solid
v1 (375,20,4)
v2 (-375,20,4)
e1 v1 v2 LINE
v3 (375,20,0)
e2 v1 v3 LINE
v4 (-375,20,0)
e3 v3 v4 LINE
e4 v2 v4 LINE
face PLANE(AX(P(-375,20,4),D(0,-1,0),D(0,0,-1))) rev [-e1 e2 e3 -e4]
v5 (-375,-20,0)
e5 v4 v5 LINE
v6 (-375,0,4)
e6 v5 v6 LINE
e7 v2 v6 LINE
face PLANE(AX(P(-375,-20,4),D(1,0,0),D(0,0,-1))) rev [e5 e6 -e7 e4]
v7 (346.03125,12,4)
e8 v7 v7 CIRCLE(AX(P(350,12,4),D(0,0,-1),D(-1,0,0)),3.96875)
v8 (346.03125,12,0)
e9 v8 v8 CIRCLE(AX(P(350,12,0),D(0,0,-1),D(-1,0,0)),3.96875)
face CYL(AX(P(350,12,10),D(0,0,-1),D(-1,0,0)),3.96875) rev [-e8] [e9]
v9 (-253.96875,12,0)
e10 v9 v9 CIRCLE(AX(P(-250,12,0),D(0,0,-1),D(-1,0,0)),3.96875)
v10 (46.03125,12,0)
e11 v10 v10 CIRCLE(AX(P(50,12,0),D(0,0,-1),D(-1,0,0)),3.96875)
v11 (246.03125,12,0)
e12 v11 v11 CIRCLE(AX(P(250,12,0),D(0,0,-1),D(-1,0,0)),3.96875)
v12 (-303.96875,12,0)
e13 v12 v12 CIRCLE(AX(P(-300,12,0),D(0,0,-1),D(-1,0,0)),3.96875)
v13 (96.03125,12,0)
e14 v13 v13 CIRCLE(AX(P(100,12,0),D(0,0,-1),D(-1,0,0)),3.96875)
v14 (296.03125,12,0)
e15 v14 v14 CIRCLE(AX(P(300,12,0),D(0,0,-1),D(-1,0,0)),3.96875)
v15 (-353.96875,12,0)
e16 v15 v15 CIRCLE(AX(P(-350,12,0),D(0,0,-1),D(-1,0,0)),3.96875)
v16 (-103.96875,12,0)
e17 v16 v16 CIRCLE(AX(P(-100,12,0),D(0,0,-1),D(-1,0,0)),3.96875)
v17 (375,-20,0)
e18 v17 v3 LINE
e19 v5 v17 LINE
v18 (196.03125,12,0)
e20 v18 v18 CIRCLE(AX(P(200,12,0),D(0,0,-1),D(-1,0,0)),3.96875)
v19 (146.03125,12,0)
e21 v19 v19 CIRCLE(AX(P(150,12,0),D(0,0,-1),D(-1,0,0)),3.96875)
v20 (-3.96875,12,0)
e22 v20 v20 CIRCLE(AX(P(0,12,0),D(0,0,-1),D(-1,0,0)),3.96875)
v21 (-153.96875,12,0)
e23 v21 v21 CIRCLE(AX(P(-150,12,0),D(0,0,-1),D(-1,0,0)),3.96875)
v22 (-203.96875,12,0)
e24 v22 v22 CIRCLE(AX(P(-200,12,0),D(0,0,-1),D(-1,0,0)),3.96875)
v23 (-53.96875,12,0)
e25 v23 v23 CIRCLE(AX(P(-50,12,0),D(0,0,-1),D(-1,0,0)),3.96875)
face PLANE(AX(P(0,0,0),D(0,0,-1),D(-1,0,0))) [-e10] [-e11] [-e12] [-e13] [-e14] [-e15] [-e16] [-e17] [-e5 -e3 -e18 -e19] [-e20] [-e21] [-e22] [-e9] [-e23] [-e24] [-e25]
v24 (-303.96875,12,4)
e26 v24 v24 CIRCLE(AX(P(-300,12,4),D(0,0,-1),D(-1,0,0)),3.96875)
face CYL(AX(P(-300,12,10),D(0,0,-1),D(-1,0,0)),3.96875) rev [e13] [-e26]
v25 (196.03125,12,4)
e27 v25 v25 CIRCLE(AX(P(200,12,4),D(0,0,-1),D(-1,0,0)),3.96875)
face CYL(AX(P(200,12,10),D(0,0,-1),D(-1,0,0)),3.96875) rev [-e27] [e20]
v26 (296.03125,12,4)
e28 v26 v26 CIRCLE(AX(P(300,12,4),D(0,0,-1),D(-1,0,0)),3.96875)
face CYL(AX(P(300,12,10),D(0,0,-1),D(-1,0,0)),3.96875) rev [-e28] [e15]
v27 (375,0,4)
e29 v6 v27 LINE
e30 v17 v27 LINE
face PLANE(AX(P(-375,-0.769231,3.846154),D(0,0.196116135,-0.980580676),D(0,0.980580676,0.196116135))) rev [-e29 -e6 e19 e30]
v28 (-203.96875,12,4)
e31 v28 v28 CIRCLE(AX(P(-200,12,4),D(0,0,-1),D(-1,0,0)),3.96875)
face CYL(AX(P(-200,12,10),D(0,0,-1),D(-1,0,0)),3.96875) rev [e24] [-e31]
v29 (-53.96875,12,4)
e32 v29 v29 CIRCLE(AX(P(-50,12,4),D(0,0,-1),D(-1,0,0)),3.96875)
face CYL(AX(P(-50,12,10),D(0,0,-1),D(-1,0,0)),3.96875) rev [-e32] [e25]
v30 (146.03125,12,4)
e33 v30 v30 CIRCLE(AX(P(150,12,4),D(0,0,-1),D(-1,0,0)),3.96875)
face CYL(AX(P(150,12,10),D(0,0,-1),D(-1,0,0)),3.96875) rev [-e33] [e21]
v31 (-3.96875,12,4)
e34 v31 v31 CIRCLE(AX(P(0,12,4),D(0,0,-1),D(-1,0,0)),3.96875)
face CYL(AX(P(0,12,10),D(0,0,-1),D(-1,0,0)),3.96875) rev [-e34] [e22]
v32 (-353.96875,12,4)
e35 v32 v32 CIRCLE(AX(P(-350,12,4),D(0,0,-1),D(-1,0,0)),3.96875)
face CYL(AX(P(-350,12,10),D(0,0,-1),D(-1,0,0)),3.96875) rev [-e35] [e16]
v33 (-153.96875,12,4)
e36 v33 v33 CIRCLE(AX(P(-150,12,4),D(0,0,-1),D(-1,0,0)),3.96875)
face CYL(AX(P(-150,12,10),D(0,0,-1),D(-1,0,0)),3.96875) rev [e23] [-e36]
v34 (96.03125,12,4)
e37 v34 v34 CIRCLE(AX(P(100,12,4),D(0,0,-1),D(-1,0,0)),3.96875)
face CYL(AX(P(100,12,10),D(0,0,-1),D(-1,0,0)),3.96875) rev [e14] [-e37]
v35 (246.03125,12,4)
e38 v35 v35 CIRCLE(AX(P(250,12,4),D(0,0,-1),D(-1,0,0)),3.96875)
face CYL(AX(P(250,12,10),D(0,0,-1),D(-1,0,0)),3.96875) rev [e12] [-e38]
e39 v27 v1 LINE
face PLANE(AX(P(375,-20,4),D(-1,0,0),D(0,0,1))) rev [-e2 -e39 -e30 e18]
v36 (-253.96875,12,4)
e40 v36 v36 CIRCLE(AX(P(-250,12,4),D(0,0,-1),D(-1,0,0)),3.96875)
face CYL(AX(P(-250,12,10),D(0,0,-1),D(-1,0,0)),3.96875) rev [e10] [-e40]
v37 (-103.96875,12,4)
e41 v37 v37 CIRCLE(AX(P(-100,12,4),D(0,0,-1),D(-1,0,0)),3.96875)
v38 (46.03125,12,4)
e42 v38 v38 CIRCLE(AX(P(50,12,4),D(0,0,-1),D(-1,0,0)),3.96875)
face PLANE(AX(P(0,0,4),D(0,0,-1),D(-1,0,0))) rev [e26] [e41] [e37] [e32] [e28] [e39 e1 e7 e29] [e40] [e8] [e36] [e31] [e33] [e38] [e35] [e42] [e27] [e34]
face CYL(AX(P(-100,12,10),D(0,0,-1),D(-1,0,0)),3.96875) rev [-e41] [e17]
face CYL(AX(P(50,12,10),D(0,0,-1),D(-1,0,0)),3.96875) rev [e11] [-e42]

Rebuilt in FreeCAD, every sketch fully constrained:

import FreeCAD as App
import Part
import Sketcher

V = App.Vector
Q = App.Units.Quantity

doc = App.newDocument("Part")
body = doc.addObject("PartDesign::Body", "Body")

sketch1 = body.newObject("Sketcher::SketchObject", "Sketch")
sketch1.AttachmentSupport = (doc.getObject("XY_Plane"), [""])
sketch1.MapMode = "FlatFace"
sketch1.addGeometry(Part.LineSegment(V(-375, 20, 0), V(-375, -20, 0)), False)
sketch1.addGeometry(Part.LineSegment(V(-375, -20, 0), V(375, -20, 0)), False)
sketch1.addGeometry(Part.LineSegment(V(375, -20, 0), V(375, 20, 0)), False)
sketch1.addGeometry(Part.LineSegment(V(375, 20, 0), V(-375, 20, 0)), False)
sketch1.addConstraint(Sketcher.Constraint("Coincident", 0, 2, 1, 1))
sketch1.addConstraint(Sketcher.Constraint("Coincident", 1, 2, 2, 1))
sketch1.addConstraint(Sketcher.Constraint("Coincident", 2, 2, 3, 1))
sketch1.addConstraint(Sketcher.Constraint("Coincident", 3, 2, 0, 1))
sketch1.addConstraint(Sketcher.Constraint("Vertical", 0))
sketch1.addConstraint(Sketcher.Constraint("Horizontal", 1))
sketch1.addConstraint(Sketcher.Constraint("Vertical", 2))
sketch1.addConstraint(Sketcher.Constraint("Horizontal", 3))
sketch1.addConstraint(Sketcher.Constraint("Symmetric", 0, 2, 2, 2, -1, 1))
sketch1.addConstraint(Sketcher.Constraint("DistanceX", 1, 1, 1, 2, Q("750 mm")))
sketch1.addConstraint(Sketcher.Constraint("DistanceY", 0, 2, 0, 1, Q("40 mm")))
pad1 = body.newObject("PartDesign::Pad", "Pad")
pad1.Profile = sketch1
pad1.Length = 4

sketch2 = body.newObject("Sketcher::SketchObject", "Sketch001")
sketch2.AttachmentSupport = (doc.getObject("YZ_Plane"), [""])
sketch2.MapMode = "FlatFace"
sketch2.AttachmentOffset = App.Placement(V(0, 0, 375), App.Rotation())
sketch2.addGeometry(Part.LineSegment(V(-20, 4, 0), V(-20, 0, 0)), False)
sketch2.addGeometry(Part.LineSegment(V(-20, 0, 0), V(0, 4, 0)), False)
sketch2.addGeometry(Part.LineSegment(V(0, 4, 0), V(-20, 4, 0)), False)
sketch2.addConstraint(Sketcher.Constraint("Coincident", 0, 2, 1, 1))
sketch2.addConstraint(Sketcher.Constraint("Coincident", 1, 2, 2, 1))
sketch2.addConstraint(Sketcher.Constraint("Coincident", 2, 2, 0, 1))
sketch2.addConstraint(Sketcher.Constraint("Vertical", 0))
sketch2.addConstraint(Sketcher.Constraint("Horizontal", 2))
sketch2.addConstraint(Sketcher.Constraint("PointOnObject", 0, 2, -1))
sketch2.addConstraint(Sketcher.Constraint("PointOnObject", 1, 2, -2))
sketch2.addConstraint(Sketcher.Constraint("DistanceX", 2, 2, 2, 1, Q("20 mm")))
sketch2.addConstraint(Sketcher.Constraint("DistanceY", 0, 2, 0, 1, Q("4 mm")))
pocket1 = body.newObject("PartDesign::Pocket", "Pocket")
pocket1.Profile = sketch2
pocket1.Type = "ThroughAll"

sketch3 = body.newObject("Sketcher::SketchObject", "Sketch002")
sketch3.AttachmentSupport = (doc.getObject("XY_Plane"), [""])
sketch3.MapMode = "FlatFace"
sketch3.addGeometry(Part.Circle(V(350, 12, 0), V(0, 0, 1), 4), False)
sketch3.addGeometry(Part.Circle(V(300, 12, 0), V(0, 0, 1), 4), False)
sketch3.addGeometry(Part.Circle(V(250, 12, 0), V(0, 0, 1), 4), False)
sketch3.addGeometry(Part.Circle(V(200, 12, 0), V(0, 0, 1), 4), False)
sketch3.addGeometry(Part.Circle(V(150, 12, 0), V(0, 0, 1), 4), False)
sketch3.addGeometry(Part.Circle(V(100, 12, 0), V(0, 0, 1), 4), False)
sketch3.addGeometry(Part.Circle(V(50, 12, 0), V(0, 0, 1), 4), False)
sketch3.addGeometry(Part.Circle(V(0, 12, 0), V(0, 0, 1), 4), False)
sketch3.addGeometry(Part.Circle(V(-50, 12, 0), V(0, 0, 1), 4), False)
sketch3.addGeometry(Part.Circle(V(-100, 12, 0), V(0, 0, 1), 4), False)
sketch3.addGeometry(Part.Circle(V(-150, 12, 0), V(0, 0, 1), 4), False)
sketch3.addGeometry(Part.Circle(V(-200, 12, 0), V(0, 0, 1), 4), False)
sketch3.addGeometry(Part.Circle(V(-250, 12, 0), V(0, 0, 1), 4), False)
sketch3.addGeometry(Part.Circle(V(-300, 12, 0), V(0, 0, 1), 4), False)
sketch3.addGeometry(Part.Circle(V(-350, 12, 0), V(0, 0, 1), 4), False)
sketch3.addConstraint(Sketcher.Constraint("Equal", 0, 1))
sketch3.addConstraint(Sketcher.Constraint("Equal", 1, 2))
sketch3.addConstraint(Sketcher.Constraint("Equal", 2, 3))
sketch3.addConstraint(Sketcher.Constraint("Equal", 3, 4))
sketch3.addConstraint(Sketcher.Constraint("Equal", 4, 5))
sketch3.addConstraint(Sketcher.Constraint("Equal", 5, 6))
sketch3.addConstraint(Sketcher.Constraint("Equal", 6, 7))
sketch3.addConstraint(Sketcher.Constraint("Equal", 7, 8))
sketch3.addConstraint(Sketcher.Constraint("Equal", 8, 9))
sketch3.addConstraint(Sketcher.Constraint("Equal", 9, 10))
sketch3.addConstraint(Sketcher.Constraint("Equal", 10, 11))
sketch3.addConstraint(Sketcher.Constraint("Equal", 11, 12))
sketch3.addConstraint(Sketcher.Constraint("Equal", 12, 13))
sketch3.addConstraint(Sketcher.Constraint("Equal", 13, 14))
sketch3.addConstraint(Sketcher.Constraint("Symmetric", 6, 3, 8, 3, -2))
sketch3.addConstraint(Sketcher.Constraint("Symmetric", 5, 3, 9, 3, -2))
sketch3.addConstraint(Sketcher.Constraint("Symmetric", 4, 3, 10, 3, -2))
sketch3.addConstraint(Sketcher.Constraint("Symmetric", 3, 3, 11, 3, -2))
sketch3.addConstraint(Sketcher.Constraint("Symmetric", 2, 3, 12, 3, -2))
sketch3.addConstraint(Sketcher.Constraint("Symmetric", 1, 3, 13, 3, -2))
sketch3.addConstraint(Sketcher.Constraint("Symmetric", 0, 3, 14, 3, -2))
sketch3.addConstraint(Sketcher.Constraint("PointOnObject", 7, 3, -2))
sketch3.addConstraint(Sketcher.Constraint("Horizontal", 0, 3, 1, 3))
sketch3.addConstraint(Sketcher.Constraint("Horizontal", 1, 3, 2, 3))
sketch3.addConstraint(Sketcher.Constraint("Horizontal", 2, 3, 3, 3))
sketch3.addConstraint(Sketcher.Constraint("Horizontal", 3, 3, 4, 3))
sketch3.addConstraint(Sketcher.Constraint("Horizontal", 4, 3, 5, 3))
sketch3.addConstraint(Sketcher.Constraint("Horizontal", 5, 3, 6, 3))
sketch3.addConstraint(Sketcher.Constraint("Horizontal", 6, 3, 7, 3))
sketch3.addConstraint(Sketcher.Constraint("DistanceX", -1, 1, 0, 3, Q("350 mm")))
sketch3.addConstraint(Sketcher.Constraint("DistanceY", -1, 1, 0, 3, Q("12 mm")))
sketch3.addConstraint(Sketcher.Constraint("DistanceX", -1, 1, 1, 3, Q("300 mm")))
sketch3.addConstraint(Sketcher.Constraint("DistanceX", -1, 1, 2, 3, Q("250 mm")))
sketch3.addConstraint(Sketcher.Constraint("DistanceX", -1, 1, 3, 3, Q("200 mm")))
sketch3.addConstraint(Sketcher.Constraint("DistanceX", -1, 1, 4, 3, Q("150 mm")))
sketch3.addConstraint(Sketcher.Constraint("DistanceX", -1, 1, 5, 3, Q("100 mm")))
sketch3.addConstraint(Sketcher.Constraint("DistanceX", -1, 1, 6, 3, Q("50 mm")))
sketch3.addConstraint(Sketcher.Constraint("Diameter", 0, Q("7.9375 mm")))
pocket2 = body.newObject("PartDesign::Pocket", "Pocket001")
pocket2.Profile = sketch3
pocket2.Length = 10
pocket2.Reversed = True

doc.recompute()
